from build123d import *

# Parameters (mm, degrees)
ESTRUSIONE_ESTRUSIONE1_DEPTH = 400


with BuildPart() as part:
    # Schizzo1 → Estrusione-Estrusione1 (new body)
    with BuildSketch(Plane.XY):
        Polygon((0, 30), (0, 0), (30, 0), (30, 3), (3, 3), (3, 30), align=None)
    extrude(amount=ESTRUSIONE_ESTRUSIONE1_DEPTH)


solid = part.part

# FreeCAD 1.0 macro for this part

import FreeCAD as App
import Part
import Sketcher


def add_polygon(sketch, points):
    """Adds a closed chain of lines whose ends are joined by coincident constraints."""
    first, n = sketch.GeometryCount, len(points)
    for a, b in zip(points, points[1:] + points[:1]):
        sketch.addGeometry(Part.LineSegment(App.Vector(*a, 0), App.Vector(*b, 0)), False)
    for i in range(n):
        sketch.addConstraint(Sketcher.Constraint("Coincident", first + i, 2, first + (i + 1) % n, 1))

doc = App.newDocument("Part")
params = doc.addObject("Spreadsheet::Sheet", "Params")
for row, (alias, value) in enumerate([
    ("sketch1_width", "30 mm"),
    ("sketch1_width2", "27 mm"),
    ("pad1_length", "400 mm"),
], start=1):
    params.set(f"A{row}", alias)
    params.set(f"B{row}", "=" + value)
    params.setAlias(f"B{row}", alias)

body = doc.addObject("PartDesign::Body", "Body")

# Sketch on XY plane
sketch1 = body.newObject("Sketcher::SketchObject", "Sketch")
sketch1.AttachmentSupport = (doc.getObject("XY_Plane"), [""])
sketch1.MapMode = "FlatFace"
add_polygon(sketch1, [(0, 30), (0, 0), (30, 0), (30, 3), (3, 3), (3, 30)])  # lines 0-5
sketch1.addConstraint(Sketcher.Constraint("Vertical", 0))
sketch1.addConstraint(Sketcher.Constraint("Horizontal", 1))
sketch1.addConstraint(Sketcher.Constraint("Vertical", 2))
sketch1.addConstraint(Sketcher.Constraint("Horizontal", 3))
sketch1.addConstraint(Sketcher.Constraint("Vertical", 4))
sketch1.addConstraint(Sketcher.Constraint("Horizontal", 5))
sketch1.addConstraint(Sketcher.Constraint("Coincident", 0, 2, -1, 1))
sketch1.addConstraint(Sketcher.Constraint("Equal", 1, 0))
sketch1.addConstraint(Sketcher.Constraint("Equal", 5, 2))
sketch1.addConstraint(Sketcher.Constraint("DistanceX", 1, 1, 1, 2, 30.0))
sketch1.addConstraint(Sketcher.Constraint("DistanceX", 3, 2, 3, 1, 27.0))
sketch1.setExpression("Constraints[15]", "Params.sketch1_width")
sketch1.setExpression("Constraints[16]", "Params.sketch1_width2")
pad1 = body.newObject("PartDesign::Pad", "Pad")
pad1.Profile = sketch1
pad1.setExpression("Length", "Params.pad1_length")

doc.recompute()
